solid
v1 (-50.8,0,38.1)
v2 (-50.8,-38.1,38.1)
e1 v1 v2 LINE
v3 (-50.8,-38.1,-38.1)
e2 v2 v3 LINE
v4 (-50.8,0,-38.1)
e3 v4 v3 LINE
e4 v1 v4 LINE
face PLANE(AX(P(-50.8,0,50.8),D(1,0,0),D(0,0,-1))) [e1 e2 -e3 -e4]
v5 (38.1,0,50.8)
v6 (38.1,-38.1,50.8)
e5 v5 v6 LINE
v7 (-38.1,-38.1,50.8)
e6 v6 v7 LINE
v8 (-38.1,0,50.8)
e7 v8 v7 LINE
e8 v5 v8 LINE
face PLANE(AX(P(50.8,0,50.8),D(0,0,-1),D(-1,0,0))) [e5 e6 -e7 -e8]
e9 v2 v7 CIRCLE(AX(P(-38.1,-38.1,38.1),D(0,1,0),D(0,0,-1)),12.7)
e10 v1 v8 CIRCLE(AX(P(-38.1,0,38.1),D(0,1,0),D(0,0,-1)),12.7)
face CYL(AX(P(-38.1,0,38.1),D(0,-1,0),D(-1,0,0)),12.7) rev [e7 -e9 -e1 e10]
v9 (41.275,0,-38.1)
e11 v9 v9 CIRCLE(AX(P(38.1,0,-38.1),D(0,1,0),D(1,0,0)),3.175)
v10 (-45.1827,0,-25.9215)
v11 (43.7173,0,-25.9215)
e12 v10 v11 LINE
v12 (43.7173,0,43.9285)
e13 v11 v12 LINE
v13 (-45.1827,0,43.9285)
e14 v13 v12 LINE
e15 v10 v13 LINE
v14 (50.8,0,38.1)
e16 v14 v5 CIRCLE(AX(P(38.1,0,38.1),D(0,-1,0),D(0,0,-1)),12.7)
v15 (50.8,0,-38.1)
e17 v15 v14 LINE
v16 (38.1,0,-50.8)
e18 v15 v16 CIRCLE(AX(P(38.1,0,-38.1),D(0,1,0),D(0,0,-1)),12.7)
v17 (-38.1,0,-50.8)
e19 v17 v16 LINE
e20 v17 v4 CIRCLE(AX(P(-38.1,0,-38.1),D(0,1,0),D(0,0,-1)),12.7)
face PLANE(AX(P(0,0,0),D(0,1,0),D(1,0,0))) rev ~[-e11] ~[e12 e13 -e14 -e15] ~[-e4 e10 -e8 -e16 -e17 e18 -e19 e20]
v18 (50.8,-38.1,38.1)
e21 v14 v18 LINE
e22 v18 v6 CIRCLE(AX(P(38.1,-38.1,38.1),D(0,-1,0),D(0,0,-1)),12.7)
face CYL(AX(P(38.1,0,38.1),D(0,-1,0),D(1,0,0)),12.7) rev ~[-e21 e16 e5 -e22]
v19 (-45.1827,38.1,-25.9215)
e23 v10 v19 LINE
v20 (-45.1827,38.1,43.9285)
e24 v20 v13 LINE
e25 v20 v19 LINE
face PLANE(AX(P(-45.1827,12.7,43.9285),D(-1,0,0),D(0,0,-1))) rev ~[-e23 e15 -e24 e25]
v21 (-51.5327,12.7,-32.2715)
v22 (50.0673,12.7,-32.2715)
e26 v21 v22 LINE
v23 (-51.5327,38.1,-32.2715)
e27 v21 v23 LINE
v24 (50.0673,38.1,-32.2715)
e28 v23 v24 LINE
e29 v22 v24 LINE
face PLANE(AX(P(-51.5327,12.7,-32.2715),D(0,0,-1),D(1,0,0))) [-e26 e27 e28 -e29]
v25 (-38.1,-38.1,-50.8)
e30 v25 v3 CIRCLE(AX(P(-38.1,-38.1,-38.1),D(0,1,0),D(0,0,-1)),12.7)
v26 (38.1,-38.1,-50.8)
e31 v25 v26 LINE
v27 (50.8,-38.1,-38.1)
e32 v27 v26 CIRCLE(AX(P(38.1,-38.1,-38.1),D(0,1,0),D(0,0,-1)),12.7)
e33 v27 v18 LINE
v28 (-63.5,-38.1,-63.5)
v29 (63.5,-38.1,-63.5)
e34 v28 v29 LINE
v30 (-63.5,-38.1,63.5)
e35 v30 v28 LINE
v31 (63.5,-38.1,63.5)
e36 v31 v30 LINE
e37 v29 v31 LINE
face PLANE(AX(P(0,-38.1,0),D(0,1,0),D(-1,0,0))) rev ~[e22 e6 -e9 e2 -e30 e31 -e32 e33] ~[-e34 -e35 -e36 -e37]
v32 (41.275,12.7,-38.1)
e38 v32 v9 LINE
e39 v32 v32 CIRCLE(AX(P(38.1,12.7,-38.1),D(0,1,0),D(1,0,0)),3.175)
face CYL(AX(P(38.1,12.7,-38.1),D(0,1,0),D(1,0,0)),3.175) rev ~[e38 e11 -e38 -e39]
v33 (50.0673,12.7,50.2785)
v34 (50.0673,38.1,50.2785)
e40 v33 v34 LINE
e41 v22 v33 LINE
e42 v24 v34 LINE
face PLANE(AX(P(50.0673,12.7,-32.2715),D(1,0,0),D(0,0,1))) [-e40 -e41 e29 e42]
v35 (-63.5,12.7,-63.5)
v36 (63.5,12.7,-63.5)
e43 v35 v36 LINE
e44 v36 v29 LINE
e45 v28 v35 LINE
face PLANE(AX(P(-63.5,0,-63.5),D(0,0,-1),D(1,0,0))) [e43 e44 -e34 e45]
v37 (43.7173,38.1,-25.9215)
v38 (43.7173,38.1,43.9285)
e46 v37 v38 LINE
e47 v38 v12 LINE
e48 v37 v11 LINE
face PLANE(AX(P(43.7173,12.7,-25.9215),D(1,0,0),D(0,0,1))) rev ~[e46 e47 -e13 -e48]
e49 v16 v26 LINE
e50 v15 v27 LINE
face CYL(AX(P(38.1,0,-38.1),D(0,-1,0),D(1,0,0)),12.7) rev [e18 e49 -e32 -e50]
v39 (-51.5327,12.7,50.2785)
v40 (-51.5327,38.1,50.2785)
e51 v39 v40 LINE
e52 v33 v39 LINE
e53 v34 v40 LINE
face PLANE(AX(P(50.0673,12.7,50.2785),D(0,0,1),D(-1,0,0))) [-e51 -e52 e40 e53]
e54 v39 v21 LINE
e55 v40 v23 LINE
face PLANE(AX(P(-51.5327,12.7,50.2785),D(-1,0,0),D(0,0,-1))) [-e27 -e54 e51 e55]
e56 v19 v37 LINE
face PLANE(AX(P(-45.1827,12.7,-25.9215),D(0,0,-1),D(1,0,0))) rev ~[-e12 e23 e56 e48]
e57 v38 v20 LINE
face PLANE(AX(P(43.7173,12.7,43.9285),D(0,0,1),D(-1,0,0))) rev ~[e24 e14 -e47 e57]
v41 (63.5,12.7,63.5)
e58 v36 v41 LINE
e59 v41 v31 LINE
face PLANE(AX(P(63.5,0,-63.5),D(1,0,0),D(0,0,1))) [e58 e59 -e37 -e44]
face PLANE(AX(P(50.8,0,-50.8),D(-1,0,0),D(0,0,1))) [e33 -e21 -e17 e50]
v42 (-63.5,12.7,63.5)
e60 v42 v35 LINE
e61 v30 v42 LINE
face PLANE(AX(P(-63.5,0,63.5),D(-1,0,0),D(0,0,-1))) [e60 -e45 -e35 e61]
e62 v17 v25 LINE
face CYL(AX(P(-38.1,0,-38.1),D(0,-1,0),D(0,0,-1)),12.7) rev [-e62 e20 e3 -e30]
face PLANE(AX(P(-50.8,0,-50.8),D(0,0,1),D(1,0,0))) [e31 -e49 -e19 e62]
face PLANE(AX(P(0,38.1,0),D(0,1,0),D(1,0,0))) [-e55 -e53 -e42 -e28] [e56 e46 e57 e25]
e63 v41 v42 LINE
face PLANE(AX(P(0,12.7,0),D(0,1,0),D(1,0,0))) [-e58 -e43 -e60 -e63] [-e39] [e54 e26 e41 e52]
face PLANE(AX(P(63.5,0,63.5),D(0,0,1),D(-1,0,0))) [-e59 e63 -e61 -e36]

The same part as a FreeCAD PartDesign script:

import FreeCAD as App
import Part
import Sketcher

V = App.Vector
Q = App.Units.Quantity


def edges_at(feature, points):
    """Names of the edges that pass closest to the given points."""
    edges = feature.Shape.Edges
    near = lambda p: min(range(len(edges)), key=lambda i: edges[i].distToShape(Part.Vertex(*p))[0])
    return sorted({f"Edge{near(p) + 1}" for p in points})

doc = App.newDocument("Part")
params = doc.addObject("Spreadsheet::Sheet", "Params")
for row, (alias, value) in enumerate([
    ("sketch1_width", "5 in"),
    ("sketch1_width2", "4 in"),
    ("pad1_length", "1.5 in"),
    ("fillet_radius", "0.5 in"),
    ("sketch2_width", "5 in"),
    ("pad2_length", "0.5 in"),
    ("sketch3_diameter", "0.25 in"),
    ("sketch4_width", "3.5 in"),
    ("sketch4_height", "2.75 in"),
    ("sketch4_width2", "4 in"),
    ("pad3_length", "1 in"),
    ("sketch5_width", "3.5 in"),
    ("sketch5_height", "2.75 in"),
], start=1):
    params.set(f"A{row}", alias)
    params.set(f"B{row}", "=" + value)
    params.setAlias(f"B{row}", alias)

body = doc.addObject("PartDesign::Body", "Body")

# Sketch on XZ plane
sketch1 = body.newObject("Sketcher::SketchObject", "Sketch")
sketch1.AttachmentSupport = (doc.getObject("XZ_Plane"), [""])
sketch1.MapMode = "FlatFace"
sketch1.addGeometry([
    Part.LineSegment(V(-64, 64, 0), V(64, 64, 0)),  # 0
    Part.LineSegment(V(64, 64, 0), V(64, -64, 0)),  # 1
    Part.LineSegment(V(64, -64, 0), V(-64, -64, 0)),  # 2
    Part.LineSegment(V(-64, -64, 0), V(-64, 64, 0)),  # 3
    Part.LineSegment(V(51, -51, 0), V(51, 51, 0)),  # 4
    Part.LineSegment(V(51, 51, 0), V(-51, 51, 0)),  # 5
    Part.LineSegment(V(-51, 51, 0), V(-51, -51, 0)),  # 6
    Part.LineSegment(V(-51, -51, 0), V(51, -51, 0)),  # 7
], False)
sketch1.addConstraint([
    Sketcher.Constraint("Coincident", 0, 2, 1, 1),
    Sketcher.Constraint("Coincident", 1, 2, 2, 1),
    Sketcher.Constraint("Coincident", 2, 2, 3, 1),
    Sketcher.Constraint("Coincident", 3, 2, 0, 1),
    Sketcher.Constraint("Coincident", 4, 2, 5, 1),
    Sketcher.Constraint("Coincident", 5, 2, 6, 1),
    Sketcher.Constraint("Coincident", 6, 2, 7, 1),
    Sketcher.Constraint("Coincident", 7, 2, 4, 1),
    Sketcher.Constraint("Horizontal", 0),
    Sketcher.Constraint("Vertical", 1),
    Sketcher.Constraint("Horizontal", 2),
    Sketcher.Constraint("Vertical", 3),
    Sketcher.Constraint("Vertical", 4),
    Sketcher.Constraint("Horizontal", 5),
    Sketcher.Constraint("Vertical", 6),
    Sketcher.Constraint("Horizontal", 7),
    Sketcher.Constraint("Symmetric", 0, 2, 2, 2, -1, 1),
    Sketcher.Constraint("Symmetric", 4, 2, 6, 2, -1, 1),
    Sketcher.Constraint("Equal", 2, 1),
    Sketcher.Constraint("Equal", 7, 4),
    Sketcher.Constraint("DistanceX", 0, 1, 0, 2, Q("5 in")),
    Sketcher.Constraint("DistanceX", 5, 2, 5, 1, Q("4 in")),
])
sketch1.setExpression("Constraints[20]", "Params.sketch1_width")
sketch1.setExpression("Constraints[21]", "Params.sketch1_width2")
pad1 = body.newObject("PartDesign::Pad", "Pad")
pad1.Profile = sketch1
pad1.setExpression("Length", "Params.pad1_length")
doc.recompute()

fillet = body.newObject("PartDesign::Fillet", "Fillet")
fillet.Base = (pad1, edges_at(pad1, [
    (-50.8, -19.05, -50.8),
    (50.8, -19.05, -50.8),
    (-50.8, -19.05, 50.8),
    (50.8, -19.05, 50.8),
]))
fillet.setExpression("Radius", "Params.fillet_radius")

# Sketch on XZ plane
sketch2 = body.newObject("Sketcher::SketchObject", "Sketch001")
sketch2.AttachmentSupport = (doc.getObject("XZ_Plane"), [""])
sketch2.MapMode = "FlatFace"
sketch2.addGeometry([
    Part.LineSegment(V(64, -64, 0), V(-64, -64, 0)),
    Part.LineSegment(V(-64, -64, 0), V(-64, 64, 0)),
    Part.LineSegment(V(-64, 64, 0), V(64, 64, 0)),
    Part.LineSegment(V(64, 64, 0), V(64, -64, 0)),
], False)
sketch2.addConstraint([
    Sketcher.Constraint("Coincident", 0, 2, 1, 1),
    Sketcher.Constraint("Coincident", 1, 2, 2, 1),
    Sketcher.Constraint("Coincident", 2, 2, 3, 1),
    Sketcher.Constraint("Coincident", 3, 2, 0, 1),
    Sketcher.Constraint("Horizontal", 0),
    Sketcher.Constraint("Vertical", 1),
    Sketcher.Constraint("Horizontal", 2),
    Sketcher.Constraint("Vertical", 3),
    Sketcher.Constraint("Symmetric", 0, 2, 2, 2, -1, 1),
    Sketcher.Constraint("Equal", 2, 1),
    Sketcher.Constraint("DistanceX", 0, 2, 0, 1, Q("5 in")),
])
sketch2.setExpression("Constraints[10]", "Params.sketch2_width")
pad2 = body.newObject("PartDesign::Pad", "Pad001")
pad2.Profile = sketch2
pad2.setExpression("Length", "Params.pad2_length")
pad2.Reversed = True

# Sketch on XZ plane
sketch3 = body.newObject("Sketcher::SketchObject", "Sketch002")
sketch3.AttachmentSupport = (doc.getObject("XZ_Plane"), [""])
sketch3.MapMode = "FlatFace"
sketch3.AttachmentOffset = App.Placement(V(0, 0, -0.5 * 25.4), App.Rotation())
sketch3.addGeometry([
    Part.Circle(V(38.1, -38.1, 0), V(0, 0, 1), 3.2),
    Part.Circle(V(-69.8, -38.1, 0), V(0, 0, 1), 3.2),
    Part.Circle(V(38.1, 69.8, 0), V(0, 0, 1), 3.2),
    Part.Circle(V(-69.8, 69.8, 0), V(0, 0, 1), 3.2),
], False)
sketch3.addConstraint([
    Sketcher.Constraint("Equal", 0, 1),
    Sketcher.Constraint("Equal", 1, 2),
    Sketcher.Constraint("Equal", 2, 3),
    Sketcher.Constraint("Horizontal", 0, 3, 1, 3),
    Sketcher.Constraint("Horizontal", 2, 3, 3, 3),
    Sketcher.Constraint("Vertical", 0, 3, 2, 3),
    Sketcher.Constraint("Vertical", 1, 3, 3, 3),
    Sketcher.Constraint("Diameter", 0, Q("0.25 in")),
    Sketcher.Constraint("DistanceX", 1, 3, 0, 3, Q("4.25 in")),
    Sketcher.Constraint("DistanceY", 0, 3, 2, 3, Q("4.25 in")),
    Sketcher.Constraint("DistanceX", -1, 1, 0, 3, Q("1.5 in")),
    Sketcher.Constraint("DistanceY", 0, 3, -1, 1, Q("1.5 in")),
])
sketch3.setExpression("Constraints[7]", "Params.sketch3_diameter")
pocket1 = body.newObject("PartDesign::Pocket", "Pocket")
pocket1.Profile = sketch3
pocket1.Type = "UpToFirst"
pocket1.Reversed = True

# Sketch on XZ plane
sketch4 = body.newObject("Sketcher::SketchObject", "Sketch003")
sketch4.AttachmentSupport = (doc.getObject("XZ_Plane"), [""])
sketch4.MapMode = "FlatFace"
sketch4.AttachmentOffset = App.Placement(V(0, 0, -0.5 * 25.4), App.Rotation())
sketch4.addGeometry([
    Part.LineSegment(V(50, -32, 0), V(-52, -32, 0)),  # 0
    Part.LineSegment(V(-52, -32, 0), V(-52, 50, 0)),  # 1
    Part.LineSegment(V(-52, 50, 0), V(50, 50, 0)),  # 2
    Part.LineSegment(V(50, 50, 0), V(50, -32, 0)),  # 3
    Part.LineSegment(V(-45, 44, 0), V(-45, -26, 0)),  # 4
    Part.LineSegment(V(-45, -26, 0), V(44, -26, 0)),  # 5
    Part.LineSegment(V(44, -26, 0), V(44, 44, 0)),  # 6
    Part.LineSegment(V(44, 44, 0), V(-45, 44, 0)),  # 7
], False)
sketch4.addConstraint([
    Sketcher.Constraint("Coincident", 0, 2, 1, 1),
    Sketcher.Constraint("Coincident", 1, 2, 2, 1),
    Sketcher.Constraint("Coincident", 2, 2, 3, 1),
    Sketcher.Constraint("Coincident", 3, 2, 0, 1),
    Sketcher.Constraint("Coincident", 4, 2, 5, 1),
    Sketcher.Constraint("Coincident", 5, 2, 6, 1),
    Sketcher.Constraint("Coincident", 6, 2, 7, 1),
    Sketcher.Constraint("Coincident", 7, 2, 4, 1),
    Sketcher.Constraint("Horizontal", 0),
    Sketcher.Constraint("Vertical", 1),
    Sketcher.Constraint("Horizontal", 2),
    Sketcher.Constraint("Vertical", 3),
    Sketcher.Constraint("Vertical", 4),
    Sketcher.Constraint("Horizontal", 5),
    Sketcher.Constraint("Vertical", 6),
    Sketcher.Constraint("Horizontal", 7),
    Sketcher.Constraint("DistanceX", 5, 1, 5, 2, Q("3.5 in")),
    Sketcher.Constraint("DistanceY", 4, 2, 4, 1, Q("2.75 in")),
    Sketcher.Constraint("DistanceX", 0, 2, 0, 1, Q("4 in")),
    Sketcher.Constraint("DistanceX", 0, 2, 4, 2, Q("0.25 in")),
    Sketcher.Constraint("DistanceY", 0, 2, 4, 2, Q("0.25 in")),
    Sketcher.Constraint("DistanceY", 6, 2, 2, 2, Q("0.25 in")),
    Sketcher.Constraint("DistanceX", 0, 2, -1, 1, Q("51.5327 mm")),
    Sketcher.Constraint("DistanceY", 0, 2, -1, 1, Q("32.2715 mm")),
])
sketch4.setExpression("Constraints[16]", "Params.sketch4_width")
sketch4.setExpression("Constraints[17]", "Params.sketch4_height")
sketch4.setExpression("Constraints[18]", "Params.sketch4_width2")
pad3 = body.newObject("PartDesign::Pad", "Pad002")
pad3.Profile = sketch4
pad3.setExpression("Length", "Params.pad3_length")
pad3.Reversed = True

# Sketch on XZ plane
sketch5 = body.newObject("Sketcher::SketchObject", "Sketch004")
sketch5.AttachmentSupport = (doc.getObject("XZ_Plane"), [""])
sketch5.MapMode = "FlatFace"
sketch5.AttachmentOffset = App.Placement(V(0, 0, -0.5 * 25.4), App.Rotation())
sketch5.addGeometry([
    Part.LineSegment(V(-45, 44, 0), V(44, 44, 0)),
    Part.LineSegment(V(44, 44, 0), V(44, -26, 0)),
    Part.LineSegment(V(44, -26, 0), V(-45, -26, 0)),
    Part.LineSegment(V(-45, -26, 0), V(-45, 44, 0)),
], False)
sketch5.addConstraint([
    Sketcher.Constraint("Coincident", 0, 2, 1, 1),
    Sketcher.Constraint("Coincident", 1, 2, 2, 1),
    Sketcher.Constraint("Coincident", 2, 2, 3, 1),
    Sketcher.Constraint("Coincident", 3, 2, 0, 1),
    Sketcher.Constraint("Horizontal", 0),
    Sketcher.Constraint("Vertical", 1),
    Sketcher.Constraint("Horizontal", 2),
    Sketcher.Constraint("Vertical", 3),
    Sketcher.Constraint("DistanceX", 0, 1, 0, 2, Q("3.5 in")),
    Sketcher.Constraint("DistanceY", 1, 2, 1, 1, Q("2.75 in")),
    Sketcher.Constraint("DistanceX", -1, 1, 0, 2, Q("43.7173 mm")),
    Sketcher.Constraint("DistanceY", -1, 1, 0, 2, Q("43.9285 mm")),
])
sketch5.setExpression("Constraints[8]", "Params.sketch5_width")
sketch5.setExpression("Constraints[9]", "Params.sketch5_height")
pocket2 = body.newObject("PartDesign::Pocket", "Pocket001")
pocket2.Profile = sketch5
pocket2.Type = "UpToFirst"
pocket2.Reversed = True

doc.recompute()
